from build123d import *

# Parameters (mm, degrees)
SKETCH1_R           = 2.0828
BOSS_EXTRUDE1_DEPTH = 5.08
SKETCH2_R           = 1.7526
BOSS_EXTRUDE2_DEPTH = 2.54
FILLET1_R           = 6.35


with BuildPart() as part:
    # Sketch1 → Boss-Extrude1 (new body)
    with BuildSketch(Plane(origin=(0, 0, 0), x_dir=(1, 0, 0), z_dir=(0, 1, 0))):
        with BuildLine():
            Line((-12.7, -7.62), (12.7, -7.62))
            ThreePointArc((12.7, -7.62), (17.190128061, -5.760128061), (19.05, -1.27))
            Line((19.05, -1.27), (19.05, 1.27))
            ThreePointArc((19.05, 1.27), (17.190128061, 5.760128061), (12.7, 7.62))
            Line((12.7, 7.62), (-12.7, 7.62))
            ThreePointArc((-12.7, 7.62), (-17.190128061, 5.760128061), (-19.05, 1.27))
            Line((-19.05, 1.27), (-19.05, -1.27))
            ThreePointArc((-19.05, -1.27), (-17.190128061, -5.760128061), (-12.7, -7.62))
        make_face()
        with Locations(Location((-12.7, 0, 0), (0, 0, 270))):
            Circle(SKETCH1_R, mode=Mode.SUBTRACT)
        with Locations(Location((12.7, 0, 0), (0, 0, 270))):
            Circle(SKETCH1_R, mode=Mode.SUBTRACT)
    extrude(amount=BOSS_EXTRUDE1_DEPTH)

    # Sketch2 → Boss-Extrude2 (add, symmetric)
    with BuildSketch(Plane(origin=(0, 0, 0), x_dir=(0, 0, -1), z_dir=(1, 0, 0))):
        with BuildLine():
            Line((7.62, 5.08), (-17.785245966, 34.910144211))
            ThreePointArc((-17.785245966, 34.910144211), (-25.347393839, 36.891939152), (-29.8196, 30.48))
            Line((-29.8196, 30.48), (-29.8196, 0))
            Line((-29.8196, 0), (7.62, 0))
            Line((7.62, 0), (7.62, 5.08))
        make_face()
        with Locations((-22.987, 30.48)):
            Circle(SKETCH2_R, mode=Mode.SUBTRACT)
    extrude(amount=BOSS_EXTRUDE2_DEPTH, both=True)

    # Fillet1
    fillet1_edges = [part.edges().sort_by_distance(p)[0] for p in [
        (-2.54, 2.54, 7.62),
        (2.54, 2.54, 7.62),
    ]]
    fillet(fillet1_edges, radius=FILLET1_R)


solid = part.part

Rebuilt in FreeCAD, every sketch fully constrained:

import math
import FreeCAD as App
import Part
import Sketcher
from FreeCAD import Vector
Q = App.Units.Quantity


def edges_at(feature, points):
    """Names of the edges that pass closest to the given points."""
    edges = feature.Shape.Edges
    near = lambda p: min(range(len(edges)), key=lambda i: edges[i].distToShape(Part.Vertex(*p))[0])
    return sorted({f"Edge{near(p) + 1}" for p in points})

doc = App.newDocument("Part")
body = doc.addObject("PartDesign::Body", "Body")

# Sketch on XZ plane
sketch1 = body.newObject("Sketcher::SketchObject", "Sketch")
sketch1.AttachmentSupport = (doc.getObject("XZ_Plane"), [""])
sketch1.MapMode = "FlatFace"
sketch1.addGeometry(Part.LineSegment(Vector(-12.7, 7.62, 0), Vector(12.7, 7.62, 0)), False)
sketch1.addGeometry(Part.ArcOfCircle(Part.Circle(Vector(12.7, 1.27, 0), Vector(0, 0, 1), 6.35), math.radians(0), math.radians(90)), False)
sketch1.addGeometry(Part.LineSegment(Vector(19.05, 1.27, 0), Vector(19.05, -1.27, 0)), False)
sketch1.addGeometry(Part.ArcOfCircle(Part.Circle(Vector(12.7, -1.27, 0), Vector(0, 0, 1), 6.35), math.radians(-90), math.radians(0)), False)
sketch1.addGeometry(Part.LineSegment(Vector(12.7, -7.62, 0), Vector(-12.7, -7.62, 0)), False)
sketch1.addGeometry(Part.ArcOfCircle(Part.Circle(Vector(-12.7, -1.27, 0), Vector(0, 0, 1), 6.35), math.radians(180), math.radians(270)), False)
sketch1.addGeometry(Part.LineSegment(Vector(-19.05, -1.27, 0), Vector(-19.05, 1.27, 0)), False)
sketch1.addGeometry(Part.ArcOfCircle(Part.Circle(Vector(-12.7, 1.27, 0), Vector(0, 0, 1), 6.35), math.radians(90), math.radians(180)), False)
sketch1.addGeometry(Part.Circle(Vector(-12.7, 0, 0), Vector(0, 0, 1), 2.0828), False)
sketch1.addGeometry(Part.Circle(Vector(12.7, 0, 0), Vector(0, 0, 1), 2.0828), False)
sketch1.addConstraint(Sketcher.Constraint("Tangent", 0, 2, 1, 2))
sketch1.addConstraint(Sketcher.Constraint("Tangent", 1, 1, 2, 1))
sketch1.addConstraint(Sketcher.Constraint("Tangent", 2, 2, 3, 2))
sketch1.addConstraint(Sketcher.Constraint("Tangent", 3, 1, 4, 1))
sketch1.addConstraint(Sketcher.Constraint("Tangent", 4, 2, 5, 2))
sketch1.addConstraint(Sketcher.Constraint("Tangent", 5, 1, 6, 1))
sketch1.addConstraint(Sketcher.Constraint("Tangent", 6, 2, 7, 2))
sketch1.addConstraint(Sketcher.Constraint("Tangent", 7, 1, 0, 1))
sketch1.addConstraint(Sketcher.Constraint("Horizontal", 0))
sketch1.addConstraint(Sketcher.Constraint("Vertical", 2))
sketch1.addConstraint(Sketcher.Constraint("Horizontal", 4))
sketch1.addConstraint(Sketcher.Constraint("Vertical", 6))
sketch1.addConstraint(Sketcher.Constraint("Equal", 1, 3))
sketch1.addConstraint(Sketcher.Constraint("Equal", 3, 5))
sketch1.addConstraint(Sketcher.Constraint("Equal", 5, 7))
sketch1.addConstraint(Sketcher.Constraint("Equal", 8, 9))
sketch1.addConstraint(Sketcher.Constraint("Symmetric", 1, 3, 5, 3, -1, 1))
sketch1.addConstraint(Sketcher.Constraint("Symmetric", 8, 3, 9, 3, -1, 1))
sketch1.addConstraint(Sketcher.Constraint("PointOnObject", 8, 3, -1))
sketch1.addConstraint(Sketcher.Constraint("Vertical", 7, 3, 8, 3))
sketch1.addConstraint(Sketcher.Constraint("DistanceX", 0, 1, 0, 2, Q("1 in")))
sketch1.addConstraint(Sketcher.Constraint("Radius", 1, Q("0.25 in")))
sketch1.addConstraint(Sketcher.Constraint("Diameter", 8, Q("0.164 in")))
sketch1.addConstraint(Sketcher.Constraint("DistanceY", 2, 2, 2, 1, Q("0.1 in")))
pad1 = body.newObject("PartDesign::Pad", "Pad")
pad1.Profile = sketch1
pad1.Length = Q("0.2 in")
pad1.Reversed = True

# Sketch on YZ plane
sketch2 = body.newObject("Sketcher::SketchObject", "Sketch001")
sketch2.AttachmentSupport = (doc.getObject("YZ_Plane"), [""])
sketch2.MapMode = "FlatFace"
sketch2.addGeometry(Part.LineSegment(Vector(5.08, -7.62, 0), Vector(34.910144, 17.785246, 0)), False)
sketch2.addGeometry(Part.ArcOfCircle(Part.Circle(Vector(30.48, 22.987, 0), Vector(0, 0, 1), 6.8326), math.radians(-49.580175), math.radians(90)), False)
sketch2.addGeometry(Part.LineSegment(Vector(30.48, 29.8196, 0), Vector(0, 29.8196, 0)), False)
sketch2.addGeometry(Part.LineSegment(Vector(0, 29.8196, 0), Vector(0, -7.62, 0)), False)
sketch2.addGeometry(Part.LineSegment(Vector(0, -7.62, 0), Vector(5.08, -7.62, 0)), False)
sketch2.addGeometry(Part.Circle(Vector(30.48, 22.987, 0), Vector(0, 0, 1), 1.7526), False)
sketch2.addConstraint(Sketcher.Constraint("Tangent", 0, 2, 1, 1))
sketch2.addConstraint(Sketcher.Constraint("Tangent", 1, 2, 2, 1))
sketch2.addConstraint(Sketcher.Constraint("Coincident", 2, 2, 3, 1))
sketch2.addConstraint(Sketcher.Constraint("Coincident", 3, 2, 4, 1))
sketch2.addConstraint(Sketcher.Constraint("Coincident", 4, 2, 0, 1))
sketch2.addConstraint(Sketcher.Constraint("Horizontal", 2))
sketch2.addConstraint(Sketcher.Constraint("Vertical", 3))
sketch2.addConstraint(Sketcher.Constraint("Horizontal", 4))
sketch2.addConstraint(Sketcher.Constraint("Coincident", 5, 3, 1, 3))
sketch2.addConstraint(Sketcher.Constraint("PointOnObject", 2, 2, -2))
sketch2.addConstraint(Sketcher.Constraint("Diameter", 5, Q("0.138 in")))
sketch2.addConstraint(Sketcher.Constraint("DistanceX", 2, 2, 2, 1, Q("1.2 in")))
sketch2.addConstraint(Sketcher.Constraint("DistanceX", 4, 1, 4, 2, Q("0.2 in")))
sketch2.addConstraint(Sketcher.Constraint("Radius", 1, Q("0.269 in")))
sketch2.addConstraint(Sketcher.Constraint("DistanceY", 3, 2, -1, 1, Q("0.3 in")))
sketch2.addConstraint(Sketcher.Constraint("DistanceY", 3, 2, 3, 1, Q("1.474 in")))
pad2 = body.newObject("PartDesign::Pad", "Pad001")
pad2.Profile = sketch2
pad2.Length = Q("0.2 in")
pad2.Midplane = True
doc.recompute()

fillet = body.newObject("PartDesign::Fillet", "Fillet")
fillet.Base = (pad2, edges_at(pad2, [(-2.54, 2.54, 7.62), (2.54, 2.54, 7.62)]))
fillet.Radius = Q("0.25 in")

doc.recompute()
